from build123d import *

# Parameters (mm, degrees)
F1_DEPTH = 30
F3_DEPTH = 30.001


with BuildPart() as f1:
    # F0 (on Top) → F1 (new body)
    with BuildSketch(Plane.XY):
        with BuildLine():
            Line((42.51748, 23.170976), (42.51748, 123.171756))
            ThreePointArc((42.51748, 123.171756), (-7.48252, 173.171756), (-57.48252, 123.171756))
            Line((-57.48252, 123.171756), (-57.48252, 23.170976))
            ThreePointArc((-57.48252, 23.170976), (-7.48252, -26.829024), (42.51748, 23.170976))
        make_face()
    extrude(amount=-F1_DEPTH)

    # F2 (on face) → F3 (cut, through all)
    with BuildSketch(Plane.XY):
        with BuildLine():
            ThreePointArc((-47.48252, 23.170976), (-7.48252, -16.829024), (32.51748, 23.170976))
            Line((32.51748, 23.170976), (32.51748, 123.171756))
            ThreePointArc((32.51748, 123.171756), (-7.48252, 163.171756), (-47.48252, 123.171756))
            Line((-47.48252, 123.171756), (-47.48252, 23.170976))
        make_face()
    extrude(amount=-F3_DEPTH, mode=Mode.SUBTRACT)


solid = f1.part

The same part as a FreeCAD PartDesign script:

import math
import FreeCAD as App
import Part
import Sketcher

V = App.Vector
Q = App.Units.Quantity

doc = App.newDocument("Part")
params = doc.addObject("Spreadsheet::Sheet", "Params")
for row, (alias, value) in enumerate([
    ("sketch1_radius", "50 mm"),
    ("pad1_length", "30 mm"),
    ("sketch2_radius", "40 mm"),
], start=1):
    params.set(f"A{row}", alias)
    params.set(f"B{row}", "=" + value)
    params.setAlias(f"B{row}", alias)

body = doc.addObject("PartDesign::Body", "Body")

# Sketch on XY plane
sketch1 = body.newObject("Sketcher::SketchObject", "Sketch")
sketch1.AttachmentSupport = (doc.getObject("XY_Plane"), [""])
sketch1.MapMode = "FlatFace"
sketch1.addGeometry(Part.LineSegment(V(43, 23, 0), V(43, 123, 0)), False)
sketch1.addGeometry(Part.ArcOfCircle(Part.Circle(V(-7, 123, 0), V(0, 0, 1), 50), math.radians(0), math.radians(180)), False)
sketch1.addGeometry(Part.LineSegment(V(-57, 123, 0), V(-57, 23, 0)), False)
sketch1.addGeometry(Part.ArcOfCircle(Part.Circle(V(-7, 23, 0), V(0, 0, 1), 50), math.radians(180), math.radians(360)), False)
sketch1.addConstraint(Sketcher.Constraint("Tangent", 0, 2, 1, 1))
sketch1.addConstraint(Sketcher.Constraint("Tangent", 1, 2, 2, 1))
sketch1.addConstraint(Sketcher.Constraint("Tangent", 2, 2, 3, 1))
sketch1.addConstraint(Sketcher.Constraint("Tangent", 3, 2, 0, 1))
sketch1.addConstraint(Sketcher.Constraint("Vertical", 0))
sketch1.addConstraint(Sketcher.Constraint("Vertical", 2))
sketch1.addConstraint(Sketcher.Constraint("Radius", 1, Q("50 mm")))
sketch1.addConstraint(Sketcher.Constraint("DistanceY", 0, 1, 0, 2, Q("100.00078 mm")))
sketch1.addConstraint(Sketcher.Constraint("DistanceX", 1, 3, -1, 1, Q("7.48252 mm")))
sketch1.addConstraint(Sketcher.Constraint("DistanceY", -1, 1, 1, 3, Q("123.171756 mm")))
sketch1.setExpression("Constraints[6]", "Params.sketch1_radius")
pad1 = body.newObject("PartDesign::Pad", "Pad")
pad1.Profile = sketch1
pad1.setExpression("Length", "Params.pad1_length")
pad1.Reversed = True

# Sketch on XY plane
sketch2 = body.newObject("Sketcher::SketchObject", "Sketch001")
sketch2.AttachmentSupport = (doc.getObject("XY_Plane"), [""])
sketch2.MapMode = "FlatFace"
sketch2.addGeometry(Part.ArcOfCircle(Part.Circle(V(-7, 23, 0), V(0, 0, 1), 40), math.radians(180), math.radians(360)), False)
sketch2.addGeometry(Part.LineSegment(V(33, 23, 0), V(33, 123, 0)), False)
sketch2.addGeometry(Part.ArcOfCircle(Part.Circle(V(-7, 123, 0), V(0, 0, 1), 40), math.radians(0), math.radians(180)), False)
sketch2.addGeometry(Part.LineSegment(V(-47, 123, 0), V(-47, 23, 0)), False)
sketch2.addConstraint(Sketcher.Constraint("Tangent", 0, 2, 1, 1))
sketch2.addConstraint(Sketcher.Constraint("Tangent", 1, 2, 2, 1))
sketch2.addConstraint(Sketcher.Constraint("Tangent", 2, 2, 3, 1))
sketch2.addConstraint(Sketcher.Constraint("Tangent", 3, 2, 0, 1))
sketch2.addConstraint(Sketcher.Constraint("Vertical", 1))
sketch2.addConstraint(Sketcher.Constraint("Vertical", 3))
sketch2.addConstraint(Sketcher.Constraint("Radius", 0, Q("40 mm")))
sketch2.addConstraint(Sketcher.Constraint("DistanceY", 1, 1, 1, 2, Q("100.00078 mm")))
sketch2.addConstraint(Sketcher.Constraint("DistanceX", 0, 3, -1, 1, Q("7.48252 mm")))
sketch2.addConstraint(Sketcher.Constraint("DistanceY", -1, 1, 0, 3, Q("23.170976 mm")))
sketch2.setExpression("Constraints[6]", "Params.sketch2_radius")
pocket1 = body.newObject("PartDesign::Pocket", "Pocket")
pocket1.Profile = sketch2
pocket1.Type = "ThroughAll"

doc.recompute()
